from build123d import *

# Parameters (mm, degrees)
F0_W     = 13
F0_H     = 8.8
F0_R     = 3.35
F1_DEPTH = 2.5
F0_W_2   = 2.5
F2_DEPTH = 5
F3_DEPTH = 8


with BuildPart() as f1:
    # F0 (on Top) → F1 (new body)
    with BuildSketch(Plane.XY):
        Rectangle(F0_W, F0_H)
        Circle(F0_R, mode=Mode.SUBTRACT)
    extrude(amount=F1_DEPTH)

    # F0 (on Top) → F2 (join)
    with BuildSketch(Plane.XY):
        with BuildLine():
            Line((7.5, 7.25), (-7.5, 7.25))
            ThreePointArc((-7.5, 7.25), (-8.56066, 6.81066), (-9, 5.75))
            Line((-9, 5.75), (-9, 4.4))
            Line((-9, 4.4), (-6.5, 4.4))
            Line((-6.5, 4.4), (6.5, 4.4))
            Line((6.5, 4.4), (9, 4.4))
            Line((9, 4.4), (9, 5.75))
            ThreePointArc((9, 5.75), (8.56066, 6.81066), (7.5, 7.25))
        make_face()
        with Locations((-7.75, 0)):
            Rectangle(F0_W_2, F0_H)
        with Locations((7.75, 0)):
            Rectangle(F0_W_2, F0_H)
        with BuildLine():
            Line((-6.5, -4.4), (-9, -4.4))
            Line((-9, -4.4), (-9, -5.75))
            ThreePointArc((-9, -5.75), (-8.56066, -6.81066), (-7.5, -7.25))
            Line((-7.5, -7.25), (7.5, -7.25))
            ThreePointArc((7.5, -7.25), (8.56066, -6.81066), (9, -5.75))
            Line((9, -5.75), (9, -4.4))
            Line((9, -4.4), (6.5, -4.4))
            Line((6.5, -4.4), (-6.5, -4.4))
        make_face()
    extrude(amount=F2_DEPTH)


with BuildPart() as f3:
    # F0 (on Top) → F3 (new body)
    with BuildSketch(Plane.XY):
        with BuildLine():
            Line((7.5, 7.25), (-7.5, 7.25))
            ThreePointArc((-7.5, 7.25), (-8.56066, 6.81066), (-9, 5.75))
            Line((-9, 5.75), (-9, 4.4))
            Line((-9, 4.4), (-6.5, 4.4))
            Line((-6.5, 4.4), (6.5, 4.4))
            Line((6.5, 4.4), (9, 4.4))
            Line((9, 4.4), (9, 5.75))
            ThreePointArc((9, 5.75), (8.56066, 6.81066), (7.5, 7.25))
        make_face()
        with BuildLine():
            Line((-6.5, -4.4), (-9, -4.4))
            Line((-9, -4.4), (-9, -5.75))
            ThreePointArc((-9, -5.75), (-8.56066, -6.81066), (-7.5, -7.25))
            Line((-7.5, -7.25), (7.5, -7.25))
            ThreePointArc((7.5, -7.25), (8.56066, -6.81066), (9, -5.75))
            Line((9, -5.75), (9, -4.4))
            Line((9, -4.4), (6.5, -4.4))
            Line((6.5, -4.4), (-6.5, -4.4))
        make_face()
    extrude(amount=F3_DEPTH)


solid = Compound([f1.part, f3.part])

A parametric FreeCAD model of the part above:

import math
import FreeCAD as App
import Part
import Sketcher
from FreeCAD import Vector
Q = App.Units.Quantity


def add_polygon(sketch, points):
    """Adds a closed chain of lines whose ends are joined by coincident constraints."""
    first, n = sketch.GeometryCount, len(points)
    for a, b in zip(points, points[1:] + points[:1]):
        sketch.addGeometry(Part.LineSegment(App.Vector(*a, 0), App.Vector(*b, 0)), False)
    for i in range(n):
        sketch.addConstraint(Sketcher.Constraint("Coincident", first + i, 2, first + (i + 1) % n, 1))

doc = App.newDocument("Part")
body = doc.addObject("PartDesign::Body", "Body")

# Sketch on XY plane
sketch1 = body.newObject("Sketcher::SketchObject", "Sketch")
sketch1.AttachmentSupport = (doc.getObject("XY_Plane"), [""])
sketch1.MapMode = "FlatFace"
add_polygon(sketch1, [(-6.5, 4.4), (-6.5, -4.4), (6.5, -4.4), (6.5, 4.4)])  # lines 0-3
sketch1.addGeometry(Part.Circle(Vector(0, 0, 0), Vector(0, 0, 1), 3.4), False)  # 4
sketch1.addConstraint([
    Sketcher.Constraint("Vertical", 0),
    Sketcher.Constraint("Horizontal", 1),
    Sketcher.Constraint("Vertical", 2),
    Sketcher.Constraint("Horizontal", 3),
    Sketcher.Constraint("Coincident", 4, 3, -1, 1),
    Sketcher.Constraint("Symmetric", 0, 2, 2, 2, -1, 1),
    Sketcher.Constraint("Diameter", 4, Q("6.7 mm")),
    Sketcher.Constraint("DistanceX", 1, 1, 1, 2, Q("13 mm")),
    Sketcher.Constraint("DistanceY", 0, 2, 0, 1, Q("8.8 mm")),
])
pad1 = body.newObject("PartDesign::Pad", "Pad")
pad1.Profile = sketch1
pad1.Length = 2.5

# Sketch on XY plane
sketch2 = body.newObject("Sketcher::SketchObject", "Sketch001")
sketch2.AttachmentSupport = (doc.getObject("XY_Plane"), [""])
sketch2.MapMode = "FlatFace"
sketch2.addGeometry(Part.LineSegment(Vector(7.5, 7.2, 0), Vector(-7.5, 7.2, 0)), False)  # 0
sketch2.addGeometry(Part.ArcOfCircle(Part.Circle(Vector(-7.5, 5.7, 0), Vector(0, 0, 1), 1.5), math.radians(90), math.radians(180)), False)  # 1
sketch2.addGeometry(Part.LineSegment(Vector(-9, 5.8, 0), Vector(-9, -5.8, 0)), False)  # 2
sketch2.addGeometry(Part.ArcOfCircle(Part.Circle(Vector(-7.5, -5.7, 0), Vector(0, 0, 1), 1.5), math.radians(-180), math.radians(-90)), False)  # 3
sketch2.addGeometry(Part.LineSegment(Vector(-7.5, -7.2, 0), Vector(7.5, -7.2, 0)), False)  # 4
sketch2.addGeometry(Part.ArcOfCircle(Part.Circle(Vector(7.5, -5.7, 0), Vector(0, 0, 1), 1.5), math.radians(-90), math.radians(0)), False)  # 5
sketch2.addGeometry(Part.LineSegment(Vector(9, -5.8, 0), Vector(9, 5.8, 0)), False)  # 6
sketch2.addGeometry(Part.ArcOfCircle(Part.Circle(Vector(7.5, 5.7, 0), Vector(0, 0, 1), 1.5), math.radians(0), math.radians(90)), False)  # 7
add_polygon(sketch2, [(-6.5, -4.4), (-6.5, 4.4), (6.5, 4.4), (6.5, -4.4)])  # lines 8-11
sketch2.addConstraint([
    Sketcher.Constraint("Tangent", 0, 2, 1, 1),
    Sketcher.Constraint("Tangent", 1, 2, 2, 1),
    Sketcher.Constraint("Tangent", 2, 2, 3, 1),
    Sketcher.Constraint("Tangent", 3, 2, 4, 1),
    Sketcher.Constraint("Tangent", 4, 2, 5, 1),
    Sketcher.Constraint("Tangent", 5, 2, 6, 1),
    Sketcher.Constraint("Tangent", 6, 2, 7, 1),
    Sketcher.Constraint("Tangent", 7, 2, 0, 1),
    Sketcher.Constraint("Horizontal", 0),
    Sketcher.Constraint("Vertical", 2),
    Sketcher.Constraint("Horizontal", 4),
    Sketcher.Constraint("Vertical", 6),
    Sketcher.Constraint("Vertical", 8),
    Sketcher.Constraint("Horizontal", 9),
    Sketcher.Constraint("Vertical", 10),
    Sketcher.Constraint("Horizontal", 11),
    Sketcher.Constraint("Equal", 1, 3),
    Sketcher.Constraint("Equal", 3, 5),
    Sketcher.Constraint("Equal", 5, 7),
    Sketcher.Constraint("Symmetric", 1, 3, 5, 3, -1, 1),
    Sketcher.Constraint("Symmetric", 8, 2, 10, 2, -1, 1),
    Sketcher.Constraint("Radius", 1, Q("1.500001 mm")),
    Sketcher.Constraint("DistanceX", 0, 2, 0, 1, Q("15 mm")),
    Sketcher.Constraint("DistanceX", 9, 1, 9, 2, Q("13 mm")),
    Sketcher.Constraint("DistanceY", 2, 2, 2, 1, Q("11.5 mm")),
    Sketcher.Constraint("DistanceY", 8, 1, 8, 2, Q("8.8 mm")),
])
pad2 = body.newObject("PartDesign::Pad", "Pad001")
pad2.Profile = sketch2
pad2.Length = 5
body2 = doc.addObject("PartDesign::Body", "Body001")
body2.AllowCompound = True

# Sketch on XY plane
sketch3 = body2.newObject("Sketcher::SketchObject", "Sketch002")
sketch3.AttachmentSupport = (doc.getObject("XY_Plane001"), [""])
sketch3.MapMode = "FlatFace"
sketch3.addGeometry([
    Part.LineSegment(Vector(7.5, 7.2, 0), Vector(-7.5, 7.2, 0)),  # 0
    Part.ArcOfCircle(Part.Circle(Vector(-7.5, 5.7, 0), Vector(0, 0, 1), 1.5), math.radians(90), math.radians(180)),  # 1
    Part.LineSegment(Vector(-9, 5.8, 0), Vector(-9, 4.4, 0)),  # 2
    Part.LineSegment(Vector(-9, 4.4, 0), Vector(9, 4.4, 0)),  # 3
    Part.LineSegment(Vector(9, 4.4, 0), Vector(9, 5.8, 0)),  # 4
    Part.ArcOfCircle(Part.Circle(Vector(7.5, 5.7, 0), Vector(0, 0, 1), 1.5), math.radians(0), math.radians(90)),  # 5
    Part.LineSegment(Vector(-9, -4.4, 0), Vector(-9, -5.8, 0)),  # 6
    Part.ArcOfCircle(Part.Circle(Vector(-7.5, -5.7, 0), Vector(0, 0, 1), 1.5), math.radians(-180), math.radians(-90)),  # 7
    Part.LineSegment(Vector(-7.5, -7.2, 0), Vector(7.5, -7.2, 0)),  # 8
    Part.ArcOfCircle(Part.Circle(Vector(7.5, -5.7, 0), Vector(0, 0, 1), 1.5), math.radians(-90), math.radians(0)),  # 9
    Part.LineSegment(Vector(9, -5.8, 0), Vector(9, -4.4, 0)),  # 10
    Part.LineSegment(Vector(9, -4.4, 0), Vector(-9, -4.4, 0)),  # 11
], False)
sketch3.addConstraint([
    Sketcher.Constraint("Tangent", 0, 2, 1, 1),
    Sketcher.Constraint("Tangent", 1, 2, 2, 1),
    Sketcher.Constraint("Coincident", 2, 2, 3, 1),
    Sketcher.Constraint("Coincident", 3, 2, 4, 1),
    Sketcher.Constraint("Tangent", 4, 2, 5, 1),
    Sketcher.Constraint("Tangent", 5, 2, 0, 1),
    Sketcher.Constraint("Tangent", 6, 2, 7, 1),
    Sketcher.Constraint("Tangent", 7, 2, 8, 1),
    Sketcher.Constraint("Tangent", 8, 2, 9, 1),
    Sketcher.Constraint("Tangent", 9, 2, 10, 1),
    Sketcher.Constraint("Coincident", 10, 2, 11, 1),
    Sketcher.Constraint("Coincident", 11, 2, 6, 1),
    Sketcher.Constraint("Horizontal", 0),
    Sketcher.Constraint("Vertical", 2),
    Sketcher.Constraint("Horizontal", 3),
    Sketcher.Constraint("Vertical", 4),
    Sketcher.Constraint("Vertical", 6),
    Sketcher.Constraint("Horizontal", 8),
    Sketcher.Constraint("Vertical", 10),
    Sketcher.Constraint("Horizontal", 11),
    Sketcher.Constraint("Equal", 1, 5),
    Sketcher.Constraint("Equal", 5, 7),
    Sketcher.Constraint("Equal", 7, 9),
    Sketcher.Constraint("Symmetric", 5, 3, 7, 3, -1, 1),
    Sketcher.Constraint("Symmetric", 2, 2, 10, 2, -1, 1),
    Sketcher.Constraint("Vertical", 1, 3, 7, 3),
    Sketcher.Constraint("Radius", 1, Q("1.500001 mm")),
    Sketcher.Constraint("DistanceX", 0, 2, 0, 1, Q("15 mm")),
    Sketcher.Constraint("DistanceY", 7, 3, 0, 2, Q("12.999999 mm")),
    Sketcher.Constraint("DistanceY", 2, 2, 2, 1, Q("1.35 mm")),
])
pad3 = body2.newObject("PartDesign::Pad", "Pad002")
pad3.Profile = sketch3
pad3.Length = 8

doc.recompute()
